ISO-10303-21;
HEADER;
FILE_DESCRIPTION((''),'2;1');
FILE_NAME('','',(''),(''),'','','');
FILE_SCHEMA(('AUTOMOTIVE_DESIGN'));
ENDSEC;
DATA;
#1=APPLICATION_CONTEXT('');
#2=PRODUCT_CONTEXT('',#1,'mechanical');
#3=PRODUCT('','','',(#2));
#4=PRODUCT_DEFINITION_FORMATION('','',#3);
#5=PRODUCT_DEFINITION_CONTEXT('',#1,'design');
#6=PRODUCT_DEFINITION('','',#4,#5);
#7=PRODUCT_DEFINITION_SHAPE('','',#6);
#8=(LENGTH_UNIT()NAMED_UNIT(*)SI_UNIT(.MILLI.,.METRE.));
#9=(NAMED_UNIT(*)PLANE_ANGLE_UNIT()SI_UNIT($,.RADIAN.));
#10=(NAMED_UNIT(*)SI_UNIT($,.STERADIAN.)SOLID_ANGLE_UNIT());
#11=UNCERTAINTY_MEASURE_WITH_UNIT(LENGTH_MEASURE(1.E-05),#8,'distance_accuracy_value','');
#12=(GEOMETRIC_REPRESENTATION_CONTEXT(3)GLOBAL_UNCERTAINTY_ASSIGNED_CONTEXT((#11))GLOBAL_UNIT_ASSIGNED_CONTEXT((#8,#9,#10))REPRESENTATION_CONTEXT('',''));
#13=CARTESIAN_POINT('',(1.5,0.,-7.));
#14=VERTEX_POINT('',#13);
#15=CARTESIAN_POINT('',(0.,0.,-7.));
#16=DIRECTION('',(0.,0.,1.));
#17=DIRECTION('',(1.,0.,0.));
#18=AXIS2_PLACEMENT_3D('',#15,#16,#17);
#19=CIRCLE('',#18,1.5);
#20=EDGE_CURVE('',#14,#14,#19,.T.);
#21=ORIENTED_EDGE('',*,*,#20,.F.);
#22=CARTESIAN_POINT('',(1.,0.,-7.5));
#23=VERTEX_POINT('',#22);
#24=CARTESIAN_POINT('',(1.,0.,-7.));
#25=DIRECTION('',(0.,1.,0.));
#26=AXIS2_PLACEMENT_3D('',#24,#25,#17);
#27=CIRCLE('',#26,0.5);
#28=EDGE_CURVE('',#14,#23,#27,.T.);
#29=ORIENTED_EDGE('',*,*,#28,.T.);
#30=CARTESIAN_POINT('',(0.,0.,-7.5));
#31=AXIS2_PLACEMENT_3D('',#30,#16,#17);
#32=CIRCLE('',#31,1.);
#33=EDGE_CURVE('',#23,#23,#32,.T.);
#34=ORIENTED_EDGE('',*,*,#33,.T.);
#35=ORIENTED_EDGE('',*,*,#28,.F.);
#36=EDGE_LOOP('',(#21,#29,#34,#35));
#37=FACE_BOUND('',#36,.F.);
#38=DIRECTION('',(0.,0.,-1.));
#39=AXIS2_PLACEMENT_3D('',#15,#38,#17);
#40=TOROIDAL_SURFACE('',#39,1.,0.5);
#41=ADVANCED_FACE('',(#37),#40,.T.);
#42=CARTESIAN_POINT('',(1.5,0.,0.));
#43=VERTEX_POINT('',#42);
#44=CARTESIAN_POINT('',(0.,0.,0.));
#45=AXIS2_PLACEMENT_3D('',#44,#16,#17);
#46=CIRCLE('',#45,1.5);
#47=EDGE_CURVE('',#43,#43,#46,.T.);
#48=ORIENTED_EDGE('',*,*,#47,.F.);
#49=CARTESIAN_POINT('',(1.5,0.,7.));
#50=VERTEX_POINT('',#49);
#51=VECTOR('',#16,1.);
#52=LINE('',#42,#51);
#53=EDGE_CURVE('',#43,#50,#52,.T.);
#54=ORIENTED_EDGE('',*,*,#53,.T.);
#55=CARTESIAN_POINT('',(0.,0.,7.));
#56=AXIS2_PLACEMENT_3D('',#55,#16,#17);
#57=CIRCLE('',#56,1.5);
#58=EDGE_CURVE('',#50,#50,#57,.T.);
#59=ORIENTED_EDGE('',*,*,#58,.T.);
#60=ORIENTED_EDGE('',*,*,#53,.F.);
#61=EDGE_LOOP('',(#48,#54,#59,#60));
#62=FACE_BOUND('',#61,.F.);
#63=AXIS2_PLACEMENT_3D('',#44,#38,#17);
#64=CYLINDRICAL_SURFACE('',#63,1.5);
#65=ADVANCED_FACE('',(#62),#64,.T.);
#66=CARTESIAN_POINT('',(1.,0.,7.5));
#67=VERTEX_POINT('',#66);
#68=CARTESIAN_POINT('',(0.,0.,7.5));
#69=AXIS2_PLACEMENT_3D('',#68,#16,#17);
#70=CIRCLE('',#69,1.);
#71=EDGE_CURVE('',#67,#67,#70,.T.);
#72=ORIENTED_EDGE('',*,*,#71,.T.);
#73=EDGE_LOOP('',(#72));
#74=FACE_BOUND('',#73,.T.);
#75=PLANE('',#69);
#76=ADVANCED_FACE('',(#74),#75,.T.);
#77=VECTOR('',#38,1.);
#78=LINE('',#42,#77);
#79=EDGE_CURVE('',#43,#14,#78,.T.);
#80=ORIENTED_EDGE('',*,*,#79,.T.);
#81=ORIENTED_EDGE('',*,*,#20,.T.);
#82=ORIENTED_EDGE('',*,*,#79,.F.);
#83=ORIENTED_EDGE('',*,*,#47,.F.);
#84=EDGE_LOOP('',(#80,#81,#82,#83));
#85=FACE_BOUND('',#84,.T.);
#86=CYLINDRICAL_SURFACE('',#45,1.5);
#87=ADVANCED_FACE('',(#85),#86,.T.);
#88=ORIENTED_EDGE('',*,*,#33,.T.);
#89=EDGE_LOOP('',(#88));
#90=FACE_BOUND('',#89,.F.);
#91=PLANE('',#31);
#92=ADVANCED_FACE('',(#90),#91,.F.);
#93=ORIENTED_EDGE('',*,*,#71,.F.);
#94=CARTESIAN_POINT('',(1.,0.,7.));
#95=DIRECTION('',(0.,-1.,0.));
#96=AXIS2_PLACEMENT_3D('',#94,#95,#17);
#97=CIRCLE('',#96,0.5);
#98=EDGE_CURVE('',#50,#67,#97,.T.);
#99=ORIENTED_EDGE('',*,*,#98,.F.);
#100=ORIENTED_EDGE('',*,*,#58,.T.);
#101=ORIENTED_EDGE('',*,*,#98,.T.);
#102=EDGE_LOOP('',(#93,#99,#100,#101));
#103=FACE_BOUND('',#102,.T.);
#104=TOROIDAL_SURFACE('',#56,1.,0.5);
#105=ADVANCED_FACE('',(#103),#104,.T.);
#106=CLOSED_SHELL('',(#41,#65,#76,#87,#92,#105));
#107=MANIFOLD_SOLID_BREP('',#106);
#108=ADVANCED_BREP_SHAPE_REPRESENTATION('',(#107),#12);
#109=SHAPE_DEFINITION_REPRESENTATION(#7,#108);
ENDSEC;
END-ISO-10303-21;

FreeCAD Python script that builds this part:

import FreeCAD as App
import Part
import Sketcher


def edges_at(feature, points):
    """Names of the edges that pass closest to the given points."""
    edges = feature.Shape.Edges
    near = lambda p: min(range(len(edges)), key=lambda i: edges[i].distToShape(Part.Vertex(*p))[0])
    return sorted({f"Edge{near(p) + 1}" for p in points})

doc = App.newDocument("Part")
params = doc.addObject("Spreadsheet::Sheet", "Params")
for row, (alias, value) in enumerate([
    ("sketch1_diameter", "3 mm"),
    ("pad1_length", "15 mm"),
    ("fillet_radius", "0.5 mm"),
], start=1):
    params.set(f"A{row}", alias)
    params.set(f"B{row}", "=" + value)
    params.setAlias(f"B{row}", alias)

body = doc.addObject("PartDesign::Body", "Body")

# Sketch on XY plane
sketch1 = body.newObject("Sketcher::SketchObject", "Sketch")
sketch1.AttachmentSupport = (doc.getObject("XY_Plane"), [""])
sketch1.MapMode = "FlatFace"
sketch1.addGeometry(Part.Circle(App.Vector(0, 0, 0), App.Vector(0, 0, 1), 1.5), False)
sketch1.addConstraint(Sketcher.Constraint("Coincident", 0, 3, -1, 1))
sketch1.addConstraint(Sketcher.Constraint("Diameter", 0, 3.0))
sketch1.setExpression("Constraints[1]", "Params.sketch1_diameter")
pad1 = body.newObject("PartDesign::Pad", "Pad")
pad1.Profile = sketch1
pad1.setExpression("Length", "Params.pad1_length")
pad1.Midplane = True
doc.recompute()

fillet = body.newObject("PartDesign::Fillet", "Fillet")
fillet.Base = (pad1, edges_at(pad1, [(-1.5, 0, 7.5), (-1.5, 0, -7.5)]))
fillet.setExpression("Radius", "Params.fillet_radius")

doc.recompute()
